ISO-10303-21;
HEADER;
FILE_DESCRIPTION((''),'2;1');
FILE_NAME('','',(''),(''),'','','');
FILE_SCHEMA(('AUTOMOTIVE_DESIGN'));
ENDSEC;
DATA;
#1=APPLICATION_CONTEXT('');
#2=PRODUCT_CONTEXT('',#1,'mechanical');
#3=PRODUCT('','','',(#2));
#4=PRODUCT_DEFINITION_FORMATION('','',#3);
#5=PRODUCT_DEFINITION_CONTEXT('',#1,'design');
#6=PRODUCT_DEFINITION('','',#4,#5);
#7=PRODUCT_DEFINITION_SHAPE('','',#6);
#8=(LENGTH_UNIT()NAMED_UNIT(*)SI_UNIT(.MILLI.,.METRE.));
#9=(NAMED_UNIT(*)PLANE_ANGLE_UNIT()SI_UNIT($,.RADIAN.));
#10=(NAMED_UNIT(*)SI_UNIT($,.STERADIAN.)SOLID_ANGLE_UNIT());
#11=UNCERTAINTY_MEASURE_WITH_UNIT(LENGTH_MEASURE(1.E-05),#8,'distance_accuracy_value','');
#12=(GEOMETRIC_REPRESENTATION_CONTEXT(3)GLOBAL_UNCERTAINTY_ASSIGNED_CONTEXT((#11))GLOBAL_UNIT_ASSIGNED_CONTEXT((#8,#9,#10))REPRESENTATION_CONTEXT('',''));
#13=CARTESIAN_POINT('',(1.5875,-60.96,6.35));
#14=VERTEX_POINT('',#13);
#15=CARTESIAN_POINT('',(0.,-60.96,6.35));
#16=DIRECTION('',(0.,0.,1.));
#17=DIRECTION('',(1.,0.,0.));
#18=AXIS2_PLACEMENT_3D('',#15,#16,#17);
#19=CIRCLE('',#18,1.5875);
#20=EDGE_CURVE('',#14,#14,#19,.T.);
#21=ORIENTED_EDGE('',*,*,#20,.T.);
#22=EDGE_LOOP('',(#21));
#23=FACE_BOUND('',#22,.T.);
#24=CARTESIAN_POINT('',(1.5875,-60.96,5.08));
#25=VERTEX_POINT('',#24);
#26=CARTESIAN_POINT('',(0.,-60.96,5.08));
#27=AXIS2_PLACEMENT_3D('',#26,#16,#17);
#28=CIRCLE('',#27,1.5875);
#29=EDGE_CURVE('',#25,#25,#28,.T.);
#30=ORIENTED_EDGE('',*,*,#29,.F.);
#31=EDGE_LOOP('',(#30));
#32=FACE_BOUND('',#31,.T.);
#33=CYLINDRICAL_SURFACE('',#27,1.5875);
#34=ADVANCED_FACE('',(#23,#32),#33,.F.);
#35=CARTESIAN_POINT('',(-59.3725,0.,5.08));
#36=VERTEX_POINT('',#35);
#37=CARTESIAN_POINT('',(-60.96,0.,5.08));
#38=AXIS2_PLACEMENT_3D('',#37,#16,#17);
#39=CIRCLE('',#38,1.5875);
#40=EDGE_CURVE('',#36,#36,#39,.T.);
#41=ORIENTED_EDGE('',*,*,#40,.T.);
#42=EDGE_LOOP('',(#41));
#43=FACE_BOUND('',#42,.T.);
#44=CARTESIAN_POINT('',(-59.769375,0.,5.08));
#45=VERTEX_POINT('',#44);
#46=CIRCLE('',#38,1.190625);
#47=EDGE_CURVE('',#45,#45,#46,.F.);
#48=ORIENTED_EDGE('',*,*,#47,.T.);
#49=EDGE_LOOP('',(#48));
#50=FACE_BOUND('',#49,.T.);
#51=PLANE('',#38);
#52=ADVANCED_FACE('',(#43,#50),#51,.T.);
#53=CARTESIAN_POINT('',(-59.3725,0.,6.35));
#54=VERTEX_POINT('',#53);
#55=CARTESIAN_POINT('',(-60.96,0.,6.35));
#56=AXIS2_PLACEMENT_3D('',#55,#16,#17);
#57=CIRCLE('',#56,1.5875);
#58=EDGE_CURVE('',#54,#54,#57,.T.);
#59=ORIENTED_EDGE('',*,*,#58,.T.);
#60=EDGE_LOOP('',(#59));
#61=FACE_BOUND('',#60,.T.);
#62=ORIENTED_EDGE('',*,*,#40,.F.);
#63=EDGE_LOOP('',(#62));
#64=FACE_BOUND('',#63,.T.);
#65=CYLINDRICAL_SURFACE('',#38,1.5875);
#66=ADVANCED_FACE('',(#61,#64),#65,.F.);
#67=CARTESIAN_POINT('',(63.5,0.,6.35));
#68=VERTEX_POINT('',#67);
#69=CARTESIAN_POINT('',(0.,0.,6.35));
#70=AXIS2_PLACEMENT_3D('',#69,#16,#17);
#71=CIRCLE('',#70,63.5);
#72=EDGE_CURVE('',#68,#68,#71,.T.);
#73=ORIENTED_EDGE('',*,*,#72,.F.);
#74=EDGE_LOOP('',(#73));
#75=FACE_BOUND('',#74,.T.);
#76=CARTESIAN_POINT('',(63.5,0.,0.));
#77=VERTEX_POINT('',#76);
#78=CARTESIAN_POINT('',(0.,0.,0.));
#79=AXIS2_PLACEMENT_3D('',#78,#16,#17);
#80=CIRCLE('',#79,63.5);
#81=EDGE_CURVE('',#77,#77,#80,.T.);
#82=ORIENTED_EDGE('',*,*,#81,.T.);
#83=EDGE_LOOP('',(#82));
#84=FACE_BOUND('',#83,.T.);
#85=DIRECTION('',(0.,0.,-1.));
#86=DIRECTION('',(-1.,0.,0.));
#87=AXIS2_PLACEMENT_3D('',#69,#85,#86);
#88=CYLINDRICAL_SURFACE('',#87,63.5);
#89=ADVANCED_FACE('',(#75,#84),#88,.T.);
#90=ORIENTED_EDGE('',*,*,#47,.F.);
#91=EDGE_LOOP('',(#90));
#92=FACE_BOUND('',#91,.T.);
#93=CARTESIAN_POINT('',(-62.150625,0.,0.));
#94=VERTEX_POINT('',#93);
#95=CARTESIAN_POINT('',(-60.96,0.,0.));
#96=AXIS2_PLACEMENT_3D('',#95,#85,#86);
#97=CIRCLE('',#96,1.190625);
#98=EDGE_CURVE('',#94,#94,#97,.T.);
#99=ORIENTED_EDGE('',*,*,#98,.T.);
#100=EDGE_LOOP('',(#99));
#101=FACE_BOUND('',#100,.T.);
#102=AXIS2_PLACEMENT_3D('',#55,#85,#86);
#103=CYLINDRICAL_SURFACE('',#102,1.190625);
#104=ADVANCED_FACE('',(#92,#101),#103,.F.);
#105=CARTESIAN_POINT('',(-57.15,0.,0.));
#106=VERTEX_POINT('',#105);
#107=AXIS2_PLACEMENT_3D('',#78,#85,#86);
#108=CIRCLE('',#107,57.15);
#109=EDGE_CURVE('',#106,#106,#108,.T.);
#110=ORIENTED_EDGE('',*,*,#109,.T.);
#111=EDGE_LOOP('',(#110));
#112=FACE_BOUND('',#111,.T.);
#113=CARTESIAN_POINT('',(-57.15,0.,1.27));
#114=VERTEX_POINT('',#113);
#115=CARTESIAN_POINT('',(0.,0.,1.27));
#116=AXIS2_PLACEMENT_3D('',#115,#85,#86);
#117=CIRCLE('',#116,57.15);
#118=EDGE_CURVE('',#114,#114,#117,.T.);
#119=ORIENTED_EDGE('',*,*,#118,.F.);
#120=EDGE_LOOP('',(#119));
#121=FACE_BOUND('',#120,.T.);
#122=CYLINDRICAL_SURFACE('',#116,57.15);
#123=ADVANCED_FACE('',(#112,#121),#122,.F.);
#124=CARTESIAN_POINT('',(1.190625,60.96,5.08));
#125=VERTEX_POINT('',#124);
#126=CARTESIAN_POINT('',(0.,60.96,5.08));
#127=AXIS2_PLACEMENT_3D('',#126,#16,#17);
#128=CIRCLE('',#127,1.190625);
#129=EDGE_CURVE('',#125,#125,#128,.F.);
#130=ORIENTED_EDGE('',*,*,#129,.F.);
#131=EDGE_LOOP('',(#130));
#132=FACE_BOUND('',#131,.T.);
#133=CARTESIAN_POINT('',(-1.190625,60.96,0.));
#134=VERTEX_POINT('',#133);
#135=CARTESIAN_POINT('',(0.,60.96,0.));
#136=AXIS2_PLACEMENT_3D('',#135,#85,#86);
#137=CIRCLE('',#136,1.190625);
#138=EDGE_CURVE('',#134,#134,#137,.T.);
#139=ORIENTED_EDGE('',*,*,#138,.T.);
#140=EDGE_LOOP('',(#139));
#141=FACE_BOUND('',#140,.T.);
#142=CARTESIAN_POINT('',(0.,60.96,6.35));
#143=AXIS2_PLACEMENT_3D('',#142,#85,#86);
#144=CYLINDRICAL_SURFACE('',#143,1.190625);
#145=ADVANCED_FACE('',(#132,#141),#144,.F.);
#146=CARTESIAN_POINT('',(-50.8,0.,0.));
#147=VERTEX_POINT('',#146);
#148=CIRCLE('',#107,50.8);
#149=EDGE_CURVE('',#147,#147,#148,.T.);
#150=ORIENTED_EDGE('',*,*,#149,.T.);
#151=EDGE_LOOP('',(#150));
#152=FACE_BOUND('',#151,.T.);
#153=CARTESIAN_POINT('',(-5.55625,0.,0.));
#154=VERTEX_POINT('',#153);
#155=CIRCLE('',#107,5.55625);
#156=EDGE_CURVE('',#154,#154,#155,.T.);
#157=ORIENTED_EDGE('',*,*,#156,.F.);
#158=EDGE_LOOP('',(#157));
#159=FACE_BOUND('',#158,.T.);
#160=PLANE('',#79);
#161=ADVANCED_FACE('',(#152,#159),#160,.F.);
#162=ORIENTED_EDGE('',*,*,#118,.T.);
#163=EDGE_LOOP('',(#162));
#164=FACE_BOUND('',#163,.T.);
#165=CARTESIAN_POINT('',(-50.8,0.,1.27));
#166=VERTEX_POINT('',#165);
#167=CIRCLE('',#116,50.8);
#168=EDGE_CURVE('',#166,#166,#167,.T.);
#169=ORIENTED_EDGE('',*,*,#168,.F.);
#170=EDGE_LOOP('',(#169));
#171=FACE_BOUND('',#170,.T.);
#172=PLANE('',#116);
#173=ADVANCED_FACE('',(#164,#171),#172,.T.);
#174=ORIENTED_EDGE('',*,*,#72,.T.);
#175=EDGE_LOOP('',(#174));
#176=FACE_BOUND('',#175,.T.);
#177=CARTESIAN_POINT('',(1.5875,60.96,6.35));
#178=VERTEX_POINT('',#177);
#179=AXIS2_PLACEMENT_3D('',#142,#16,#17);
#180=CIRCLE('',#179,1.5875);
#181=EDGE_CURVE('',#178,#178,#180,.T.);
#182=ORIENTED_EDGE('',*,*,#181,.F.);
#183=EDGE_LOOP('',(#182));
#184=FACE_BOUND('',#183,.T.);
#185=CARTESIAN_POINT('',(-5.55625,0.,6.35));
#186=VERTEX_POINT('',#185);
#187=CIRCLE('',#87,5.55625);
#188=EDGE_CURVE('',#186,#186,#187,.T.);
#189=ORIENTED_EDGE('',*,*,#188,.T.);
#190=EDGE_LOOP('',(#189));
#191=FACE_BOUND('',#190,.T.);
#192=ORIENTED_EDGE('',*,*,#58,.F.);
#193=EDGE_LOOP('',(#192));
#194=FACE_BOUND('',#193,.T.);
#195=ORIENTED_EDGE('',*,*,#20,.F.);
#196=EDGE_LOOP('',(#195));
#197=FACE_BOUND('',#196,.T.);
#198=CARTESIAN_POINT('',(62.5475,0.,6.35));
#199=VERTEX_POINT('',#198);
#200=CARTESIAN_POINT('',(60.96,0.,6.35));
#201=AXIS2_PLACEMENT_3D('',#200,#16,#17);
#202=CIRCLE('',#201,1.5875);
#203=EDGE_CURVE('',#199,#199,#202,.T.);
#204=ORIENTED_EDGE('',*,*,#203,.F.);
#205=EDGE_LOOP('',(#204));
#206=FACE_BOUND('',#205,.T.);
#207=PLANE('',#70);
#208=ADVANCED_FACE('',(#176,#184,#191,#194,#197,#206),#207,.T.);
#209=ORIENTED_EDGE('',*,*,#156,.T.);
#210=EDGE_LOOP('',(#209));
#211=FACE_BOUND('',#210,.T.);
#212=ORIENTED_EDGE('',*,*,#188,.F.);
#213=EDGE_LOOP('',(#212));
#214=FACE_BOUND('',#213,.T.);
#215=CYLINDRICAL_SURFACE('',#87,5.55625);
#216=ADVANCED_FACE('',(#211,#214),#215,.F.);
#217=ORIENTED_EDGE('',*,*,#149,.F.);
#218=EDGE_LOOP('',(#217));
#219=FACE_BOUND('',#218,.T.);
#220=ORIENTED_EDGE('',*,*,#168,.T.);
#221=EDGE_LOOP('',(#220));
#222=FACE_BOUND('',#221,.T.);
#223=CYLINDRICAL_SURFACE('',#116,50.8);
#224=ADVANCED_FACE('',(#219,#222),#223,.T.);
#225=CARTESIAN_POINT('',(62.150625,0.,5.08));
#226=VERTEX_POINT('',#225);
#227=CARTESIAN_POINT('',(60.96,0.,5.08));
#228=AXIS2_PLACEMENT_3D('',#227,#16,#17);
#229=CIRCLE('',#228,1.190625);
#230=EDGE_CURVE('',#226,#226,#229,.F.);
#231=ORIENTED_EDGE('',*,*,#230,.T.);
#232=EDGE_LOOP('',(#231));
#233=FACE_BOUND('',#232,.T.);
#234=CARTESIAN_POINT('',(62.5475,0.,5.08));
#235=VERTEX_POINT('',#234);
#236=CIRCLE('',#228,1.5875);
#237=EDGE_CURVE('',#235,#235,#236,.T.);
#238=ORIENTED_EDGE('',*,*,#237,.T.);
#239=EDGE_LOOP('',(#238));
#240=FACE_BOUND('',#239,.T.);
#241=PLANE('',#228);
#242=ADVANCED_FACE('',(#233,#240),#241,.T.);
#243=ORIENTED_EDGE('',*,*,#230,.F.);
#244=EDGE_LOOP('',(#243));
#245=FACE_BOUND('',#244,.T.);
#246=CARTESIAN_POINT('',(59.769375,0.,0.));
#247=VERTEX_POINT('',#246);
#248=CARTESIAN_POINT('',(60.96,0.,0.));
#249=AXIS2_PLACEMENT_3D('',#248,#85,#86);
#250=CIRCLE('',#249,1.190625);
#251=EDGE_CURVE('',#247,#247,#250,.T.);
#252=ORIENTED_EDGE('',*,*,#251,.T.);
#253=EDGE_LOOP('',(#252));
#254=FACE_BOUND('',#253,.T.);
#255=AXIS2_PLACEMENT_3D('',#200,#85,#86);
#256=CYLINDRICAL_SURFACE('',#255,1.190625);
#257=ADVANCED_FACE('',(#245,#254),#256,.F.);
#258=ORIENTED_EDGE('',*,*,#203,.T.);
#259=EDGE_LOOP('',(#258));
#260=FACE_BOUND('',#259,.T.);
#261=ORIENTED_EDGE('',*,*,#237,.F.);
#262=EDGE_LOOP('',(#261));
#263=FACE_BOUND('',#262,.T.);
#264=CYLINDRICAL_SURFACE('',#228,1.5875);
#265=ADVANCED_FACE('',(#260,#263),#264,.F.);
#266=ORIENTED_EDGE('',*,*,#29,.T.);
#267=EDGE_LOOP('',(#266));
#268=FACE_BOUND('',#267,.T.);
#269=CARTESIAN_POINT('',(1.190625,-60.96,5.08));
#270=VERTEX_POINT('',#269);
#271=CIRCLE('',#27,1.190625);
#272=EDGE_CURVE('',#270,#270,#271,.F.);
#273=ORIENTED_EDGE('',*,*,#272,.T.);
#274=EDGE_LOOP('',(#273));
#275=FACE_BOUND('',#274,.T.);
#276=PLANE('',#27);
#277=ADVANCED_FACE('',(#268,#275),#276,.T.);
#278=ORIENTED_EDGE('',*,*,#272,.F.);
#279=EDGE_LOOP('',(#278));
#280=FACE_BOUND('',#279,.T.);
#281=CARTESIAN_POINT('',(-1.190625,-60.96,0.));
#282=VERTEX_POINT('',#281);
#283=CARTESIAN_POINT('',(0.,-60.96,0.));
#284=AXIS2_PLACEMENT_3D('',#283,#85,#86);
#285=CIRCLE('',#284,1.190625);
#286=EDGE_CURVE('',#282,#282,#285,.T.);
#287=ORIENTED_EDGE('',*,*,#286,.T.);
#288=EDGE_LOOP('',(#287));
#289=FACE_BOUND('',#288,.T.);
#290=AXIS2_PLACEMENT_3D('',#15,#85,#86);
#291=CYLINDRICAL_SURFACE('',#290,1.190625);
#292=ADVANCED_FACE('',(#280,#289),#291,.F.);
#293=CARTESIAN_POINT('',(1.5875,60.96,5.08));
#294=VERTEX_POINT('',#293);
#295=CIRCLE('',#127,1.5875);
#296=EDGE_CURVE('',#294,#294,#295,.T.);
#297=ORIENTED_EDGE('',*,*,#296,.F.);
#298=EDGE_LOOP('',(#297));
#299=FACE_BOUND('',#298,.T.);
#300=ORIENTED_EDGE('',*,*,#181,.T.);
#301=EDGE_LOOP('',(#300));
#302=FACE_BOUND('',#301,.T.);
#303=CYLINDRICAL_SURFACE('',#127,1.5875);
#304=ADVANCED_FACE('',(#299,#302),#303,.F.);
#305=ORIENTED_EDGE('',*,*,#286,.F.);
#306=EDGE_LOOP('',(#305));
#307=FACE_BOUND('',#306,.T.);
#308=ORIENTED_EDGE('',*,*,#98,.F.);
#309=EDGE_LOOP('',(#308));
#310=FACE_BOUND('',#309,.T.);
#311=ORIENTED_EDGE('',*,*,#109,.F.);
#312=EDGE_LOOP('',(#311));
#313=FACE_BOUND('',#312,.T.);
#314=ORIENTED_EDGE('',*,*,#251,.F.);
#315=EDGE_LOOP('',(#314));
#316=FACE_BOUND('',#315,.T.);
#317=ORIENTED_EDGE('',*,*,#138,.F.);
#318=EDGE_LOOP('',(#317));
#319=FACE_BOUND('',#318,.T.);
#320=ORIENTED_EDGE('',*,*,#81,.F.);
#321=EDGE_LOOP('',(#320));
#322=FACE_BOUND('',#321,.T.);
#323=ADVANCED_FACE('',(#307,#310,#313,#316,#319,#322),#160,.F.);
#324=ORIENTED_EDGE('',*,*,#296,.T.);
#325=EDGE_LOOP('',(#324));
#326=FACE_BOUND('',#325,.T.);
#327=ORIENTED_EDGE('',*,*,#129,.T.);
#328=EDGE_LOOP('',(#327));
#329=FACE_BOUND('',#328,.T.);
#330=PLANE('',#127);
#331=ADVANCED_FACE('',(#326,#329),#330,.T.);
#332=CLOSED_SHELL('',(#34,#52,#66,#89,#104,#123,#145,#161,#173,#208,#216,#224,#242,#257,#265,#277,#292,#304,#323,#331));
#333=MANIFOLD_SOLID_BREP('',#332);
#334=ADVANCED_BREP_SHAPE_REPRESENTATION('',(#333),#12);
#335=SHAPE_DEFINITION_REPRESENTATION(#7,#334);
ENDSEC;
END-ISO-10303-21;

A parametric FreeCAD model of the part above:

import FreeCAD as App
import Part
import Sketcher

V = App.Vector
Q = App.Units.Quantity

doc = App.newDocument("Part")
params = doc.addObject("Spreadsheet::Sheet", "Params")
for row, (alias, value) in enumerate([
    ("sketch1_diameter", "5 in"),
    ("pad1_length", "0.25 in"),
    ("sketch2_diameter", "4 in"),
    ("sketch2_diameter2", "4.5 in"),
    ("pocket1_length", "0.05 in"),
    ("sketch3_diameter", "0.09375 in"),
    ("sketch4_diameter", "0.125 in"),
    ("pocket3_length", "0.05 in"),
    ("sketch5_diameter", "0.4375 in"),
], start=1):
    params.set(f"A{row}", alias)
    params.set(f"B{row}", "=" + value)
    params.setAlias(f"B{row}", alias)

body = doc.addObject("PartDesign::Body", "Body")

sketch1 = doc.addObject("Sketcher::SketchObject", "Sketch")
body.addObject(sketch1)
sketch1.AttachmentSupport = (doc.XY_Plane, [""])
sketch1.MapMode = "FlatFace"
sketch1.addGeometry(Part.Circle(V(0, 0, 0), V(0, 0, 1), 64), False)
sketch1.addConstraint([
    Sketcher.Constraint("Coincident", 0, 3, -1, 1),
    Sketcher.Constraint("Diameter", 0, Q("5 in")),
])
sketch1.setExpression("Constraints[1]", "Params.sketch1_diameter")
pad1 = doc.addObject("PartDesign::Pad", "Pad")
body.addObject(pad1)
pad1.Profile = sketch1
pad1.setExpression("Length", "Params.pad1_length")

sketch2 = doc.addObject("Sketcher::SketchObject", "Sketch001")
body.addObject(sketch2)
sketch2.AttachmentSupport = (doc.XY_Plane, [""])
sketch2.MapMode = "FlatFace"
sketch2.addGeometry([
    Part.Circle(V(0, 0, 0), V(0, 0, 1), 57),
    Part.Circle(V(0, 0, 0), V(0, 0, 1), 51),
], False)
sketch2.addConstraint([
    Sketcher.Constraint("Coincident", 0, 3, -1, 1),
    Sketcher.Constraint("Coincident", 1, 3, -1, 1),
    Sketcher.Constraint("Diameter", 1, Q("4 in")),
    Sketcher.Constraint("Diameter", 0, Q("4.5 in")),
])
sketch2.setExpression("Constraints[2]", "Params.sketch2_diameter")
sketch2.setExpression("Constraints[3]", "Params.sketch2_diameter2")
pocket1 = doc.addObject("PartDesign::Pocket", "Pocket")
body.addObject(pocket1)
pocket1.Profile = sketch2
pocket1.setExpression("Length", "Params.pocket1_length")
pocket1.Reversed = True

sketch3 = doc.addObject("Sketcher::SketchObject", "Sketch002")
body.addObject(sketch3)
sketch3.AttachmentSupport = (doc.XY_Plane, [""])
sketch3.MapMode = "FlatFace"
sketch3.addGeometry([
    Part.Circle(V(0, 61, 0), V(0, 0, 1), 1.2),
    Part.Circle(V(-61, 0, 0), V(0, 0, 1), 1.2),
    Part.Circle(V(0, -61, 0), V(0, 0, 1), 1.2),
    Part.Circle(V(61, 0, 0), V(0, 0, 1), 1.2),
], False)
sketch3.addConstraint([
    Sketcher.Constraint("Equal", 0, 1),
    Sketcher.Constraint("Equal", 1, 2),
    Sketcher.Constraint("Equal", 2, 3),
    Sketcher.Constraint("Symmetric", 0, 3, 2, 3, -1, 1),
    Sketcher.Constraint("Symmetric", 1, 3, 3, 3, -1, 1),
    Sketcher.Constraint("PointOnObject", 0, 3, -2),
    Sketcher.Constraint("PointOnObject", 1, 3, -1),
    Sketcher.Constraint("Diameter", 0, Q("0.09375 in")),
    Sketcher.Constraint("DistanceY", -1, 1, 0, 3, Q("2.4 in")),
    Sketcher.Constraint("DistanceX", 1, 3, -1, 1, Q("2.4 in")),
])
sketch3.setExpression("Constraints[7]", "Params.sketch3_diameter")
pocket2 = doc.addObject("PartDesign::Pocket", "Pocket001")
body.addObject(pocket2)
pocket2.Profile = sketch3
pocket2.Type = "ThroughAll"
pocket2.Reversed = True

sketch4 = doc.addObject("Sketcher::SketchObject", "Sketch003")
body.addObject(sketch4)
sketch4.AttachmentSupport = (doc.XY_Plane, [""])
sketch4.MapMode = "FlatFace"
sketch4.AttachmentOffset = App.Placement(V(0, 0, 0.25 * 25.4), App.Rotation())
sketch4.addGeometry([
    Part.Circle(V(0, 61, 0), V(0, 0, 1), 1.6),
    Part.Circle(V(61, 0, 0), V(0, 0, 1), 1.6),
    Part.Circle(V(0, -61, 0), V(0, 0, 1), 1.6),
    Part.Circle(V(-61, 0, 0), V(0, 0, 1), 1.6),
], False)
sketch4.addConstraint([
    Sketcher.Constraint("Equal", 0, 1),
    Sketcher.Constraint("Equal", 1, 2),
    Sketcher.Constraint("Equal", 2, 3),
    Sketcher.Constraint("Symmetric", 0, 3, 2, 3, -1, 1),
    Sketcher.Constraint("Symmetric", 1, 3, 3, 3, -1, 1),
    Sketcher.Constraint("PointOnObject", 0, 3, -2),
    Sketcher.Constraint("PointOnObject", 1, 3, -1),
    Sketcher.Constraint("Diameter", 0, Q("0.125 in")),
    Sketcher.Constraint("DistanceY", -1, 1, 0, 3, Q("2.4 in")),
    Sketcher.Constraint("DistanceX", -1, 1, 1, 3, Q("2.4 in")),
])
sketch4.setExpression("Constraints[7]", "Params.sketch4_diameter")
pocket3 = doc.addObject("PartDesign::Pocket", "Pocket002")
body.addObject(pocket3)
pocket3.Profile = sketch4
pocket3.setExpression("Length", "Params.pocket3_length")

sketch5 = doc.addObject("Sketcher::SketchObject", "Sketch004")
body.addObject(sketch5)
sketch5.AttachmentSupport = (doc.XY_Plane, [""])
sketch5.MapMode = "FlatFace"
sketch5.addGeometry(Part.Circle(V(0, 0, 0), V(0, 0, 1), 6), False)
sketch5.addConstraint([
    Sketcher.Constraint("Coincident", 0, 3, -1, 1),
    Sketcher.Constraint("Diameter", 0, Q("0.4375 in")),
])
sketch5.setExpression("Constraints[1]", "Params.sketch5_diameter")
pocket4 = doc.addObject("PartDesign::Pocket", "Pocket003")
body.addObject(pocket4)
pocket4.Profile = sketch5
pocket4.Type = "ThroughAll"
pocket4.Reversed = True

doc.recompute()
